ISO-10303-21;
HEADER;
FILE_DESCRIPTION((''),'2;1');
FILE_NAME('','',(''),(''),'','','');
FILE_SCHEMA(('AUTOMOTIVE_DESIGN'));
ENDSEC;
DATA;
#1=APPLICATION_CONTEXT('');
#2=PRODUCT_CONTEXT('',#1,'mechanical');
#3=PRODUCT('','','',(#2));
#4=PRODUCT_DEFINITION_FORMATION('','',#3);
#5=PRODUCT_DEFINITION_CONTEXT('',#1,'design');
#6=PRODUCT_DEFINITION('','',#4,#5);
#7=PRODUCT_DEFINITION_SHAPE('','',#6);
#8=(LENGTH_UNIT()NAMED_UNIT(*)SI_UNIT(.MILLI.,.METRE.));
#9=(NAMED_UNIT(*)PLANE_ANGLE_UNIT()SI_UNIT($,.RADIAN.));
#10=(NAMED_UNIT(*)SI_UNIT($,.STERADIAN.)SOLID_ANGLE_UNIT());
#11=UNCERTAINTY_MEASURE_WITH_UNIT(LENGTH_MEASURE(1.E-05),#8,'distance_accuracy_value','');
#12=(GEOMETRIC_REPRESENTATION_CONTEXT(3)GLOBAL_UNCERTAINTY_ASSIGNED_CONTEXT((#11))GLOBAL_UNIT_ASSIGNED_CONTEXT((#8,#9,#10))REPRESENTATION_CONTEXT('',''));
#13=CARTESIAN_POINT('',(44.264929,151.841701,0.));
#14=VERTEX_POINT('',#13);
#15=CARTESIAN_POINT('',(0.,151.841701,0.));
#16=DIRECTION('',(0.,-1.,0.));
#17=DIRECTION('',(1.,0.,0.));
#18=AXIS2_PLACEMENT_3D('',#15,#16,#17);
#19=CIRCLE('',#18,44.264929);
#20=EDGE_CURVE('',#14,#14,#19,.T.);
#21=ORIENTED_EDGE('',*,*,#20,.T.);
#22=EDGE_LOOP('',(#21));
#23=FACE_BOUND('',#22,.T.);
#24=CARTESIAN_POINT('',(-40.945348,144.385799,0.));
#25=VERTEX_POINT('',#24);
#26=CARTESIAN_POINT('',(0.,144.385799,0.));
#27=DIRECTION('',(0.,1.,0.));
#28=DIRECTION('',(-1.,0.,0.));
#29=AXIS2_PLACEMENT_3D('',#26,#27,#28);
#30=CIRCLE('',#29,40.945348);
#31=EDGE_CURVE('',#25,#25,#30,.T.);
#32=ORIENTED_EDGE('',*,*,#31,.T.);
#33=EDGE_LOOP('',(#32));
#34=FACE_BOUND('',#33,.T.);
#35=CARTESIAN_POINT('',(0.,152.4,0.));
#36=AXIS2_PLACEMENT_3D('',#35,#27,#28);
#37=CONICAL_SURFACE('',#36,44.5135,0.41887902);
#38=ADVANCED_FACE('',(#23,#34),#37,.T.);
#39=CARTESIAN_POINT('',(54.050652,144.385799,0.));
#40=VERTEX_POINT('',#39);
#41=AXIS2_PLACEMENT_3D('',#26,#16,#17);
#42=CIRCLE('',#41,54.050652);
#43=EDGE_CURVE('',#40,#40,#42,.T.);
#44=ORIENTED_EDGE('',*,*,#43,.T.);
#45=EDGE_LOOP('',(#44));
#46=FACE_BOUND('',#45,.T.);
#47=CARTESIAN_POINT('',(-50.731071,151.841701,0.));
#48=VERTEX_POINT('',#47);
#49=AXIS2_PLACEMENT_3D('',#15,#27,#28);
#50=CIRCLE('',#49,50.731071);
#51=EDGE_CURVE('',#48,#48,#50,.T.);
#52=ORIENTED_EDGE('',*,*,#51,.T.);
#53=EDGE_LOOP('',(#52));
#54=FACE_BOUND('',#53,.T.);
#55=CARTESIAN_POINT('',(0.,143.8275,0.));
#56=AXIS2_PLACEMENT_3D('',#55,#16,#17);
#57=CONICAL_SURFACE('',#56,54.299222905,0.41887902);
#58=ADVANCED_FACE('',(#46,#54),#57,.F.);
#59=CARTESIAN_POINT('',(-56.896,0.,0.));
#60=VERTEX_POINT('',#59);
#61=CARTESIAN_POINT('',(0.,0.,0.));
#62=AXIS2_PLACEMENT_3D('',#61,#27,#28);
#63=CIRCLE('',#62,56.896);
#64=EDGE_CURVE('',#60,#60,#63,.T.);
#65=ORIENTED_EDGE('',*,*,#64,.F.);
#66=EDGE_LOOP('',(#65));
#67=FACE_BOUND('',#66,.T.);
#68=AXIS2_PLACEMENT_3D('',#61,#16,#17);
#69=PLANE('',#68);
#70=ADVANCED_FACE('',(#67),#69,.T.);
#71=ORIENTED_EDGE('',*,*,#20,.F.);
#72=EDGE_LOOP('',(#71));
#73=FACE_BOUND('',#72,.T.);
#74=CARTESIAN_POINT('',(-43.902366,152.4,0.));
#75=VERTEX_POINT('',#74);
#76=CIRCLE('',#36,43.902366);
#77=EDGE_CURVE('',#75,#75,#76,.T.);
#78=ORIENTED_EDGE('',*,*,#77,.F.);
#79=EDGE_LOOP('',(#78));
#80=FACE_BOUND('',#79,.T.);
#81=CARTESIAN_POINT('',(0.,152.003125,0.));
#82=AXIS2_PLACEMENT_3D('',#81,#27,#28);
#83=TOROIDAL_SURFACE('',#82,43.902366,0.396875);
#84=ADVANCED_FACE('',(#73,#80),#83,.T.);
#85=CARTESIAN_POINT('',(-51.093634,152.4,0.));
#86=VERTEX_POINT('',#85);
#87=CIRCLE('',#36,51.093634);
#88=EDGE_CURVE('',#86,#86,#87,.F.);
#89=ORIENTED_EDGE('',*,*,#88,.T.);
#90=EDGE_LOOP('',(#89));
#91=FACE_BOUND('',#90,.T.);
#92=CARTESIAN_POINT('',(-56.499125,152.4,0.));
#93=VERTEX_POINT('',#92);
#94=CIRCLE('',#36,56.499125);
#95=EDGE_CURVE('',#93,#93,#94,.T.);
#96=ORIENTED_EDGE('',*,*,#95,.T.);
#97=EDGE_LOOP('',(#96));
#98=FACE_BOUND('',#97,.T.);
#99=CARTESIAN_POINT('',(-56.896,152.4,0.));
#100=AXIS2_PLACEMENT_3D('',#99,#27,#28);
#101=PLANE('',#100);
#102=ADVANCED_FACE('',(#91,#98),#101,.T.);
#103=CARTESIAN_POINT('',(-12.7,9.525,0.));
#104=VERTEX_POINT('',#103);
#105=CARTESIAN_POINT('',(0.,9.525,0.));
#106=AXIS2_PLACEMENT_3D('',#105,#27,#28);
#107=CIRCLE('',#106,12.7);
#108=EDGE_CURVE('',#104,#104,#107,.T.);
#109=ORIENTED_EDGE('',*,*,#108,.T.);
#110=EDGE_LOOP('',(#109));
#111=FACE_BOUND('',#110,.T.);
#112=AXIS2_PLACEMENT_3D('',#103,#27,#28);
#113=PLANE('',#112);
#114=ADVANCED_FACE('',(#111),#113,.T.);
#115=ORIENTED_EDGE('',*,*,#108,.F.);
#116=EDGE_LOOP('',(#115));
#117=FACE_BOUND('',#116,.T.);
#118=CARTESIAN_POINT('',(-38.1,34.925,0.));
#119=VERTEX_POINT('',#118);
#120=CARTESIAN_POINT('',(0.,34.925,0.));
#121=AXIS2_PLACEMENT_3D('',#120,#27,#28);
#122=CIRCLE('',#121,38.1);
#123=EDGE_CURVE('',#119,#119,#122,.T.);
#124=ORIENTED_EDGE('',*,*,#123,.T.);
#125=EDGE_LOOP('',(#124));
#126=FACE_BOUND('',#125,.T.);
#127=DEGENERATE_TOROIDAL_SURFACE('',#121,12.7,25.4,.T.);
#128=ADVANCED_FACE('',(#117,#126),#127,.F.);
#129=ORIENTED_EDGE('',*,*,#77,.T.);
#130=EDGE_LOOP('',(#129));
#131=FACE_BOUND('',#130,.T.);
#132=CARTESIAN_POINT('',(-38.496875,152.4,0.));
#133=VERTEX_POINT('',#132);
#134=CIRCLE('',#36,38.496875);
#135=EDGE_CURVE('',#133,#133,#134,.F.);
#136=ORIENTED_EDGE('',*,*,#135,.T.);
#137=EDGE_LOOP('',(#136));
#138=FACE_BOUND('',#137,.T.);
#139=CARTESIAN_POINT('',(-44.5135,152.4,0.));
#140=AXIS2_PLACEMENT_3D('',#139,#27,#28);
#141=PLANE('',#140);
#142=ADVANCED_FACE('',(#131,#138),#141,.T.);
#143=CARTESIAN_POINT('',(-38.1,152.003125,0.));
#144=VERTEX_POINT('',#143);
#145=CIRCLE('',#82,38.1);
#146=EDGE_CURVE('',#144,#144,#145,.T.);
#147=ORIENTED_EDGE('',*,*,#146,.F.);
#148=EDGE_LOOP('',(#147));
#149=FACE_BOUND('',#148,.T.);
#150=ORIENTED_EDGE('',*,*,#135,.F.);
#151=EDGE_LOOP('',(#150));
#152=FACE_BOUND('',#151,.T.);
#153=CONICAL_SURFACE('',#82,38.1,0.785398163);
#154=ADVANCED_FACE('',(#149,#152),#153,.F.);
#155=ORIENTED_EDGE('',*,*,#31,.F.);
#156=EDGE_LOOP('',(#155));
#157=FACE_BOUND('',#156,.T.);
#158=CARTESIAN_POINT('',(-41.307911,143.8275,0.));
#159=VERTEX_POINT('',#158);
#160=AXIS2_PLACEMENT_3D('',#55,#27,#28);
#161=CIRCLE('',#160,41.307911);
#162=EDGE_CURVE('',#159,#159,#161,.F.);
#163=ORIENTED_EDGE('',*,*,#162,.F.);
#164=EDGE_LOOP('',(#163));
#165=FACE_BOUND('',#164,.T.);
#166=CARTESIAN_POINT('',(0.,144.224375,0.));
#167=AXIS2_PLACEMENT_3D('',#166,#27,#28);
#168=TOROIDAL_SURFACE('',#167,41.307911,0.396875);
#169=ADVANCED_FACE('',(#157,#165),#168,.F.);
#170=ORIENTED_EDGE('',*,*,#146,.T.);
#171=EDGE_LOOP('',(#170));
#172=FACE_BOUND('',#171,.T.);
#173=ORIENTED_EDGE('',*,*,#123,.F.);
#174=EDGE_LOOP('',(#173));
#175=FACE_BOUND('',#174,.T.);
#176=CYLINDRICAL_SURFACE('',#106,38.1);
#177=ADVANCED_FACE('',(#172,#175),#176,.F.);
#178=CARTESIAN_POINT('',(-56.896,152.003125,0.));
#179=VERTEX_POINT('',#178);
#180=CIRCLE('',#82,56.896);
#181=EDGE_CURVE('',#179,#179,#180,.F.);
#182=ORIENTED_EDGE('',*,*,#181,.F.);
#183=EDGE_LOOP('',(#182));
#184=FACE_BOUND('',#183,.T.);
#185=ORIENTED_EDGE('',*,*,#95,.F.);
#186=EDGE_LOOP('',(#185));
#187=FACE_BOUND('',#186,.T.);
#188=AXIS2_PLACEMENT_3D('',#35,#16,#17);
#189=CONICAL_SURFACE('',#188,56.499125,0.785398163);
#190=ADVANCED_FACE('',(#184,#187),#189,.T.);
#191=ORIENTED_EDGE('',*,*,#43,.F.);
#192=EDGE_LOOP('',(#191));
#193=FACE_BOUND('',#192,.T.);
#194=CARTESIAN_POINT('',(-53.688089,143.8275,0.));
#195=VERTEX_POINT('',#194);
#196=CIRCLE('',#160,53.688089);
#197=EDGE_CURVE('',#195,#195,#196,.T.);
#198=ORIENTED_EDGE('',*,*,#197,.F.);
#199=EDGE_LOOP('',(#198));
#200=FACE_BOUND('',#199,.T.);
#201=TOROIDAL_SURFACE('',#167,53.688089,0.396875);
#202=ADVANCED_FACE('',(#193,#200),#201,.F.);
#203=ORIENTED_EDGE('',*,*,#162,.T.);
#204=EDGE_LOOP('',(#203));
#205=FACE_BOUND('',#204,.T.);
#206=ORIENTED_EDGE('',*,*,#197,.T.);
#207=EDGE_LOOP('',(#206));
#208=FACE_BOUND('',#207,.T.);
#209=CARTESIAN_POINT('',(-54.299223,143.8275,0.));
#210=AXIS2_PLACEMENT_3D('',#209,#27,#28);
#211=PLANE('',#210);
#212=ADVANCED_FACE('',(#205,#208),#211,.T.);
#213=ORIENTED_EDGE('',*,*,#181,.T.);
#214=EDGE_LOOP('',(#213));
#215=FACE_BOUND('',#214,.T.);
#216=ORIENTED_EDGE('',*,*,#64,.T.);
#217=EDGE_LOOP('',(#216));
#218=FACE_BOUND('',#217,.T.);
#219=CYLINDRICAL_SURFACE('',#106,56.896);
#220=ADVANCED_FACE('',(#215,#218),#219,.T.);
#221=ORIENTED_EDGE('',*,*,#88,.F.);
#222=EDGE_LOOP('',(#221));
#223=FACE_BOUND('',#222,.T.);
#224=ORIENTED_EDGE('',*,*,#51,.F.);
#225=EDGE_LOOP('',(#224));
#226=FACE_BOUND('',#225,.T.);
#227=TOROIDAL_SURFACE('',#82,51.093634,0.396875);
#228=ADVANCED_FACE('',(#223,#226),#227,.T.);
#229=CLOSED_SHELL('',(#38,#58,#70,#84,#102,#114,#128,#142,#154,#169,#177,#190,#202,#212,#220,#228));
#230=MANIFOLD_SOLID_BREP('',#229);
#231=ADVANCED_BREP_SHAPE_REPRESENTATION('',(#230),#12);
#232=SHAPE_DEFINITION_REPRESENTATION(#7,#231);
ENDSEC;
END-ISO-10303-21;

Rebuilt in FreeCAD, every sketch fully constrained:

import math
import FreeCAD as App
import Part
import Sketcher
from FreeCAD import Vector
Q = App.Units.Quantity


def edges_at(feature, points):
    """Names of the edges that pass closest to the given points."""
    edges = feature.Shape.Edges
    near = lambda p: min(range(len(edges)), key=lambda i: edges[i].distToShape(Part.Vertex(*p))[0])
    return sorted({f"Edge{near(p) + 1}" for p in points})

doc = App.newDocument("Part")
body = doc.addObject("PartDesign::Body", "Body")

sketch1 = body.newObject("Sketcher::SketchObject", "Sketch")
sketch1.AttachmentSupport = (doc.getObject("XY_Plane"), [""])
sketch1.MapMode = "FlatFace"
sketch1.addGeometry([
    Part.LineSegment(Vector(-57, 0, 0), Vector(0, 0, 0)),
    Part.LineSegment(Vector(0, 0, 0), Vector(0, 10, 0)),
    Part.LineSegment(Vector(0, 10, 0), Vector(-13, 10, 0)),
    Part.ArcOfCircle(Part.Circle(Vector(-13, 35, 0), Vector(0, 0, 1), 25), math.radians(180), math.radians(270)),
    Part.LineSegment(Vector(-38, 35, 0), Vector(-38, 152, 0)),
    Part.LineSegment(Vector(-38, 152, 0), Vector(-45, 152, 0)),
    Part.LineSegment(Vector(-45, 152, 0), Vector(-41, 144, 0)),
    Part.LineSegment(Vector(-41, 144, 0), Vector(-54, 144, 0)),
    Part.LineSegment(Vector(-54, 144, 0), Vector(-50, 152, 0)),
    Part.LineSegment(Vector(-50, 152, 0), Vector(-57, 152, 0)),
    Part.LineSegment(Vector(-57, 152, 0), Vector(-57, 0, 0)),
], False)
sketch1.addConstraint([
    Sketcher.Constraint("Coincident", 0, 2, 1, 1),
    Sketcher.Constraint("Coincident", 1, 2, 2, 1),
    Sketcher.Constraint("Tangent", 2, 2, 3, 2),
    Sketcher.Constraint("Tangent", 3, 1, 4, 1),
    Sketcher.Constraint("Coincident", 4, 2, 5, 1),
    Sketcher.Constraint("Coincident", 5, 2, 6, 1),
    Sketcher.Constraint("Coincident", 6, 2, 7, 1),
    Sketcher.Constraint("Coincident", 7, 2, 8, 1),
    Sketcher.Constraint("Coincident", 8, 2, 9, 1),
    Sketcher.Constraint("Coincident", 9, 2, 10, 1),
    Sketcher.Constraint("Coincident", 10, 2, 0, 1),
    Sketcher.Constraint("Horizontal", 0),
    Sketcher.Constraint("Vertical", 1),
    Sketcher.Constraint("Horizontal", 2),
    Sketcher.Constraint("Vertical", 4),
    Sketcher.Constraint("Horizontal", 5),
    Sketcher.Constraint("Horizontal", 7),
    Sketcher.Constraint("Horizontal", 9),
    Sketcher.Constraint("Vertical", 10),
    Sketcher.Constraint("Coincident", 0, 2, -1, 1),
    Sketcher.Constraint("Horizontal", 5, 2, 8, 2),
    Sketcher.Constraint("Equal", 5, 9),
    Sketcher.Constraint("Equal", 6, 8),
    Sketcher.Constraint("Radius", 3, Q("1 in")),
    Sketcher.Constraint("DistanceY", 10, 2, 10, 1, Q("6 in")),
    Sketcher.Constraint("DistanceX", 2, 2, 2, 1, Q("0.5 in")),
    Sketcher.Constraint("Angle", 6, Q("-66 deg")),
    Sketcher.Constraint("DistanceX", 0, 1, 0, 2, Q("2.24 in")),
    Sketcher.Constraint("DistanceY", 1, 1, 1, 2, Q("0.375 in")),
    Sketcher.Constraint("DistanceX", 5, 2, 5, 1, Q("0.2525 in")),
    Sketcher.Constraint("DistanceY", -1, 1, 6, 2, Q("5.6625 in")),
])
revolution = body.newObject("PartDesign::Revolution", "Revolution")
revolution.Profile = sketch1
revolution.ReferenceAxis = (sketch1, ["V_Axis"])
revolution.Angle = 360
doc.recompute()

fillet = body.newObject("PartDesign::Fillet", "Fillet")
fillet.Base = (revolution, edges_at(revolution, [
    (50.483, 152.4, 0),
    (54.299, 143.827, 0),
    (40.697, 143.827, 0),
    (44.514, 152.4, 0),
]))
fillet.Radius = Q("0.015625 in")
doc.recompute()

chamfer = body.newObject("PartDesign::Chamfer", "Chamfer")
chamfer.Base = (fillet, edges_at(fillet, [(38.1, 152.4, 0), (56.896, 152.4, 0)]))
chamfer.Size = Q("0.015625 in")

doc.recompute()
